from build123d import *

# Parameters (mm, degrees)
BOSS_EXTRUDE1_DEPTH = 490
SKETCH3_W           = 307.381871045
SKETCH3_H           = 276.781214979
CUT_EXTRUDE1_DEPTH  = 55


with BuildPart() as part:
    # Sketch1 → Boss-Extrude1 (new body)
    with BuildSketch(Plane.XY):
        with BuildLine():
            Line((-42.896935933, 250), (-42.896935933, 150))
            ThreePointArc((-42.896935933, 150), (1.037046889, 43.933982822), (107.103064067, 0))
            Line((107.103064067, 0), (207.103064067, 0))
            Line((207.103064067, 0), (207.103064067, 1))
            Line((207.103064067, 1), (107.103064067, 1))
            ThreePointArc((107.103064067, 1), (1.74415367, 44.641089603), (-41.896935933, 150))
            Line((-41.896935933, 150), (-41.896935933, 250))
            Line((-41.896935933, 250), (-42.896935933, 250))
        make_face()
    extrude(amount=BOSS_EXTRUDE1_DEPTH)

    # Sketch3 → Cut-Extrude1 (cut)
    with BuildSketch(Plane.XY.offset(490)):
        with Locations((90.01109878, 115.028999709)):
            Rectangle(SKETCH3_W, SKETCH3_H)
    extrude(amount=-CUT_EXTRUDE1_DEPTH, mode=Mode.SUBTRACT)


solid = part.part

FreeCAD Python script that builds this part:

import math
import FreeCAD as App
import Part
import Sketcher


def add_polygon(sketch, points):
    """Adds a closed chain of lines whose ends are joined by coincident constraints."""
    first, n = sketch.GeometryCount, len(points)
    for a, b in zip(points, points[1:] + points[:1]):
        sketch.addGeometry(Part.LineSegment(App.Vector(*a, 0), App.Vector(*b, 0)), False)
    for i in range(n):
        sketch.addConstraint(Sketcher.Constraint("Coincident", first + i, 2, first + (i + 1) % n, 1))

doc = App.newDocument("Part")
body = doc.addObject("PartDesign::Body", "Body")

# Sketch on XY plane
sketch1 = doc.addObject("Sketcher::SketchObject", "Sketch")
body.addObject(sketch1)
sketch1.AttachmentSupport = (doc.XY_Plane, [""])
sketch1.MapMode = "FlatFace"
sketch1.addGeometry(Part.LineSegment(App.Vector(-42.9, 250, 0), App.Vector(-42.9, 150, 0)), False)
sketch1.addGeometry(Part.ArcOfCircle(Part.Circle(App.Vector(107.1, 150, 0), App.Vector(0, 0, 1), 150), math.radians(180), math.radians(270)), False)
sketch1.addGeometry(Part.LineSegment(App.Vector(107.1, 0, 0), App.Vector(207.1, 0, 0)), False)
sketch1.addGeometry(Part.LineSegment(App.Vector(207.1, 0, 0), App.Vector(207.1, 1, 0)), False)
sketch1.addGeometry(Part.LineSegment(App.Vector(207.1, 1, 0), App.Vector(107.1, 1, 0)), False)
sketch1.addGeometry(Part.ArcOfCircle(Part.Circle(App.Vector(107.1, 150, 0), App.Vector(0, 0, 1), 149), math.radians(180), math.radians(270)), False)
sketch1.addGeometry(Part.LineSegment(App.Vector(-41.9, 150, 0), App.Vector(-41.9, 250, 0)), False)
sketch1.addGeometry(Part.LineSegment(App.Vector(-41.9, 250, 0), App.Vector(-42.9, 250, 0)), False)
sketch1.addConstraint(Sketcher.Constraint("Tangent", 0, 2, 1, 1))
sketch1.addConstraint(Sketcher.Constraint("Tangent", 1, 2, 2, 1))
sketch1.addConstraint(Sketcher.Constraint("Coincident", 2, 2, 3, 1))
sketch1.addConstraint(Sketcher.Constraint("Coincident", 3, 2, 4, 1))
sketch1.addConstraint(Sketcher.Constraint("Tangent", 4, 2, 5, 2))
sketch1.addConstraint(Sketcher.Constraint("Tangent", 5, 1, 6, 1))
sketch1.addConstraint(Sketcher.Constraint("Coincident", 6, 2, 7, 1))
sketch1.addConstraint(Sketcher.Constraint("Coincident", 7, 2, 0, 1))
sketch1.addConstraint(Sketcher.Constraint("Vertical", 0))
sketch1.addConstraint(Sketcher.Constraint("Horizontal", 2))
sketch1.addConstraint(Sketcher.Constraint("Vertical", 3))
sketch1.addConstraint(Sketcher.Constraint("Horizontal", 4))
sketch1.addConstraint(Sketcher.Constraint("Vertical", 6))
sketch1.addConstraint(Sketcher.Constraint("Horizontal", 7))
sketch1.addConstraint(Sketcher.Constraint("Coincident", 5, 3, 1, 3))
sketch1.addConstraint(Sketcher.Constraint("PointOnObject", 1, 2, -1))
sketch1.addConstraint(Sketcher.Constraint("Equal", 4, 0))
sketch1.addConstraint(Sketcher.Constraint("Radius", 1, 150.0))
sketch1.addConstraint(Sketcher.Constraint("Radius", 5, 149.0))
sketch1.addConstraint(Sketcher.Constraint("DistanceX", 2, 1, 2, 2, 100.0))
sketch1.addConstraint(Sketcher.Constraint("DistanceX", -1, 1, 1, 3, 107.103064))
pad1 = doc.addObject("PartDesign::Pad", "Pad")
body.addObject(pad1)
pad1.Profile = sketch1
pad1.Length = 490

# Sketch on XY plane
sketch2 = doc.addObject("Sketcher::SketchObject", "Sketch001")
body.addObject(sketch2)
sketch2.AttachmentSupport = (doc.XY_Plane, [""])
sketch2.MapMode = "FlatFace"
sketch2.AttachmentOffset = App.Placement(App.Vector(0, 0, 490), App.Rotation())
add_polygon(sketch2, [(-64, 253), (-64, -23), (244, -23), (244, 253)])  # lines 0-3
sketch2.addConstraint(Sketcher.Constraint("Vertical", 0))
sketch2.addConstraint(Sketcher.Constraint("Horizontal", 1))
sketch2.addConstraint(Sketcher.Constraint("Vertical", 2))
sketch2.addConstraint(Sketcher.Constraint("Horizontal", 3))
sketch2.addConstraint(Sketcher.Constraint("DistanceX", 1, 1, 1, 2, 307.381871))
sketch2.addConstraint(Sketcher.Constraint("DistanceY", 0, 2, 0, 1, 276.781215))
sketch2.addConstraint(Sketcher.Constraint("DistanceX", 0, 2, -1, 1, 63.679837))
sketch2.addConstraint(Sketcher.Constraint("DistanceY", 0, 2, -1, 1, 23.361608))
pocket1 = doc.addObject("PartDesign::Pocket", "Pocket")
body.addObject(pocket1)
pocket1.Profile = sketch2
pocket1.Length = 55

doc.recompute()
